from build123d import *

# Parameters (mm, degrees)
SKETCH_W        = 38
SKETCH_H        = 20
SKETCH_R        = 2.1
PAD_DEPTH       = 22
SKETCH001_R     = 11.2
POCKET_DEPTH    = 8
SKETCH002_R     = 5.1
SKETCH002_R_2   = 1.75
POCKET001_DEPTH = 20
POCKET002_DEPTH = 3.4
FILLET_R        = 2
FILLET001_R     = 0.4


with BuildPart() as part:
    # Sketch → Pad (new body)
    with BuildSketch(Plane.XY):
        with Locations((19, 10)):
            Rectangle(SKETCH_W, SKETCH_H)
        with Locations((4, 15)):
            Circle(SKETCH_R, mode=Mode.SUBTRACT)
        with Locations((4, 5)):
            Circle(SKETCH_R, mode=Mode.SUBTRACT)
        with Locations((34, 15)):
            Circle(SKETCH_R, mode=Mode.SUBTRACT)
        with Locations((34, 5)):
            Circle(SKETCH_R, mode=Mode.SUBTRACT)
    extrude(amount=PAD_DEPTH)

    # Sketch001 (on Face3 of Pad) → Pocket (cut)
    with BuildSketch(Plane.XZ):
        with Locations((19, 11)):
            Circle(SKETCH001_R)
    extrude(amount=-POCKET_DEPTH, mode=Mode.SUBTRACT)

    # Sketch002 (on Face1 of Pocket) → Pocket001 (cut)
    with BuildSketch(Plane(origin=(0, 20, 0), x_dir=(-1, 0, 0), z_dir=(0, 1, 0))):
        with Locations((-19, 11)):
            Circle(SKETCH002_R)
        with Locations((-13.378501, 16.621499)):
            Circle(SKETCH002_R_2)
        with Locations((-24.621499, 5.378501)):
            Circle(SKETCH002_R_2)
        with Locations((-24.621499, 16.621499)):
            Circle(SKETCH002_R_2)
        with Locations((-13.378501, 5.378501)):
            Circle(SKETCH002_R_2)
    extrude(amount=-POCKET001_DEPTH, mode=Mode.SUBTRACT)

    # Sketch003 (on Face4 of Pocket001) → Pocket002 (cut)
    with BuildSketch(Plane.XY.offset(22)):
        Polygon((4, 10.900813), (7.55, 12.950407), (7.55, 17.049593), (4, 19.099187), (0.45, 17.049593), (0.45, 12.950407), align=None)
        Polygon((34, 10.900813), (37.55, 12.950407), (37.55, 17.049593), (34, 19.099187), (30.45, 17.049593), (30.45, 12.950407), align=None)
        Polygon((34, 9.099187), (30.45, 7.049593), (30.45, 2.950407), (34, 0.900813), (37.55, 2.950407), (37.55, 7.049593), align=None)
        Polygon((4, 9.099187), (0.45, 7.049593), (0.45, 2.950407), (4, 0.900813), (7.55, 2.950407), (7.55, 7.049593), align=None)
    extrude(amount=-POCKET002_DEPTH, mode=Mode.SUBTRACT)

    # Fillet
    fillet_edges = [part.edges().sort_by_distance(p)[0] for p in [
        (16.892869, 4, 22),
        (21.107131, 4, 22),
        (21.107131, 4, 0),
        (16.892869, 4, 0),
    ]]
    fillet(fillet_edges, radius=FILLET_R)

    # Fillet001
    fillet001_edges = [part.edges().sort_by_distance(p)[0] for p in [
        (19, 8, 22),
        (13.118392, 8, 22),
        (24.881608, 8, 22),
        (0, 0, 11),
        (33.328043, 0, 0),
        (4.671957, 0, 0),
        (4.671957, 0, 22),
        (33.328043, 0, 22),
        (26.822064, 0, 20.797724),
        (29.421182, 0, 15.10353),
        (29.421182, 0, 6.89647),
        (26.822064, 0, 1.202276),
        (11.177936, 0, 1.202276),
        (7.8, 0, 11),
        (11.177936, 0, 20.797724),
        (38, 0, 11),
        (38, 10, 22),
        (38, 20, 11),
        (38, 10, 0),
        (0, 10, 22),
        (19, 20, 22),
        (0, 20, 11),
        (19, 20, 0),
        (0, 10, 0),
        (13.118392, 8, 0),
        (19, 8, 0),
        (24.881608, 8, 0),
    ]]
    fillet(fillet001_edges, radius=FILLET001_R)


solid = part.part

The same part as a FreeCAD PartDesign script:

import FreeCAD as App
import Part
import Sketcher
Q = App.Units.Quantity


def edges_at(feature, points):
    """Names of the edges that pass closest to the given points."""
    edges = feature.Shape.Edges
    near = lambda p: min(range(len(edges)), key=lambda i: edges[i].distToShape(Part.Vertex(*p))[0])
    return sorted({f"Edge{near(p) + 1}" for p in points})


def add_polygon(sketch, points):
    """Adds a closed chain of lines whose ends are joined by coincident constraints."""
    first, n = sketch.GeometryCount, len(points)
    for a, b in zip(points, points[1:] + points[:1]):
        sketch.addGeometry(Part.LineSegment(App.Vector(*a, 0), App.Vector(*b, 0)), False)
    for i in range(n):
        sketch.addConstraint(Sketcher.Constraint("Coincident", first + i, 2, first + (i + 1) % n, 1))

doc = App.newDocument("Part")
params = doc.addObject("Spreadsheet::Sheet", "Params")
for row, (alias, value) in enumerate([
    ("sketch1_diameter", "4.2 mm"),
    ("sketch1_width", "38 mm"),
    ("sketch1_height", "20 mm"),
    ("pad1_length", "22 mm"),
    ("sketch2_diameter", "22.4 mm"),
    ("pocket1_length", "8 mm"),
    ("sketch3_diameter", "10.2 mm"),
    ("sketch3_diameter2", "3.5 mm"),
    ("pocket2_length", "20 mm"),
    ("pocket3_length", "3.4 mm"),
    ("fillet_radius", "2 mm"),
    ("fillet2_radius", "0.4 mm"),
], start=1):
    params.set(f"A{row}", alias)
    params.set(f"B{row}", "=" + value)
    params.setAlias(f"B{row}", alias)

body = doc.addObject("PartDesign::Body", "Body")

sketch1 = body.newObject("Sketcher::SketchObject", "Sketch")
sketch1.AttachmentSupport = (doc.getObject("XY_Plane"), [""])
sketch1.MapMode = "FlatFace"
add_polygon(sketch1, [(0, 20), (0, 0), (38, 0), (38, 20)])
sketch1.addGeometry(Part.Circle(App.Vector(4, 5, 0), App.Vector(0, 0, 1), 2.1), False)
sketch1.addGeometry(Part.Circle(App.Vector(34, 5, 0), App.Vector(0, 0, 1), 2.1), False)
sketch1.addGeometry(Part.Circle(App.Vector(4, 15, 0), App.Vector(0, 0, 1), 2.1), False)
sketch1.addGeometry(Part.Circle(App.Vector(34, 15, 0), App.Vector(0, 0, 1), 2.1), False)
sketch1.addConstraint([
    Sketcher.Constraint("Vertical", 0),
    Sketcher.Constraint("Horizontal", 1),
    Sketcher.Constraint("Vertical", 2),
    Sketcher.Constraint("Horizontal", 3),
    Sketcher.Constraint("Coincident", 0, 2, -1, 1),
    Sketcher.Constraint("Equal", 4, 5),
    Sketcher.Constraint("Equal", 5, 6),
    Sketcher.Constraint("Equal", 6, 7),
    Sketcher.Constraint("Horizontal", 4, 3, 5, 3),
    Sketcher.Constraint("Horizontal", 6, 3, 7, 3),
    Sketcher.Constraint("Vertical", 4, 3, 6, 3),
    Sketcher.Constraint("Vertical", 5, 3, 7, 3),
    Sketcher.Constraint("Diameter", 4, 4.2),
    Sketcher.Constraint("DistanceX", 1, 1, 1, 2, 38.0),
    Sketcher.Constraint("DistanceY", 0, 2, 0, 1, 20.0),
    Sketcher.Constraint("DistanceX", -1, 1, 4, 3, 4.0),
    Sketcher.Constraint("DistanceY", -1, 1, 4, 3, 5.0),
    Sketcher.Constraint("DistanceX", -1, 1, 5, 3, 34.0),
    Sketcher.Constraint("DistanceY", -1, 1, 6, 3, 15.0),
])
sketch1.setExpression("Constraints[16]", "Params.sketch1_diameter")
sketch1.setExpression("Constraints[17]", "Params.sketch1_width")
sketch1.setExpression("Constraints[18]", "Params.sketch1_height")
pad1 = body.newObject("PartDesign::Pad", "Pad")
pad1.Profile = sketch1
pad1.setExpression("Length", "Params.pad1_length")

sketch2 = body.newObject("Sketcher::SketchObject", "Sketch001")
sketch2.AttachmentSupport = (doc.getObject("XZ_Plane"), [""])
sketch2.MapMode = "FlatFace"
sketch2.addGeometry(Part.Circle(App.Vector(19, 11, 0), App.Vector(0, 0, 1), 11), False)
sketch2.addConstraint([
    Sketcher.Constraint("Diameter", 0, 22.4),
    Sketcher.Constraint("DistanceX", -1, 1, 0, 3, 19.0),
    Sketcher.Constraint("DistanceY", -1, 1, 0, 3, 11.0),
])
sketch2.setExpression("Constraints[0]", "Params.sketch2_diameter")
pocket1 = body.newObject("PartDesign::Pocket", "Pocket")
pocket1.Profile = sketch2
pocket1.setExpression("Length", "Params.pocket1_length")

sketch3 = body.newObject("Sketcher::SketchObject", "Sketch002")
sketch3.AttachmentSupport = (doc.getObject("XZ_Plane"), [""])
sketch3.MapMode = "FlatFace"
sketch3.AttachmentOffset = App.Placement(App.Vector(0, 0, -20), App.Rotation())
sketch3.addGeometry([
    Part.Circle(App.Vector(19, 11, 0), App.Vector(0, 0, 1), 5.1),
    Part.Circle(App.Vector(13.4, 16.6, 0), App.Vector(0, 0, 1), 1.8),
    Part.Circle(App.Vector(24.6, 5.4, 0), App.Vector(0, 0, 1), 1.8),
    Part.Circle(App.Vector(24.6, 16.6, 0), App.Vector(0, 0, 1), 1.8),
    Part.Circle(App.Vector(13.4, 5.4, 0), App.Vector(0, 0, 1), 1.8),
], False)
sketch3.addConstraint([
    Sketcher.Constraint("Equal", 1, 2),
    Sketcher.Constraint("Equal", 2, 3),
    Sketcher.Constraint("Equal", 3, 4),
    Sketcher.Constraint("Horizontal", 1, 3, 3, 3),
    Sketcher.Constraint("Horizontal", 2, 3, 4, 3),
    Sketcher.Constraint("Vertical", 2, 3, 3, 3),
    Sketcher.Constraint("Vertical", 1, 3, 4, 3),
    Sketcher.Constraint("Diameter", 0, 10.2),
    Sketcher.Constraint("Diameter", 1, 3.5),
    Sketcher.Constraint("DistanceX", -1, 1, 0, 3, 19.0),
    Sketcher.Constraint("DistanceY", -1, 1, 0, 3, 11.0),
    Sketcher.Constraint("DistanceX", -1, 1, 1, 3, 13.378501),
    Sketcher.Constraint("DistanceY", -1, 1, 1, 3, 16.621499),
    Sketcher.Constraint("DistanceX", -1, 1, 2, 3, 24.621499),
    Sketcher.Constraint("DistanceY", -1, 1, 2, 3, 5.378501),
])
sketch3.setExpression("Constraints[7]", "Params.sketch3_diameter")
sketch3.setExpression("Constraints[8]", "Params.sketch3_diameter2")
pocket2 = body.newObject("PartDesign::Pocket", "Pocket001")
pocket2.Profile = sketch3
pocket2.setExpression("Length", "Params.pocket2_length")
pocket2.Reversed = True

sketch4 = body.newObject("Sketcher::SketchObject", "Sketch003")
sketch4.AttachmentSupport = (doc.getObject("XY_Plane"), [""])
sketch4.MapMode = "FlatFace"
sketch4.AttachmentOffset = App.Placement(App.Vector(0, 0, 22), App.Rotation())
add_polygon(sketch4, [(4, 10.9), (7.5, 13), (7.5, 17), (4, 19.1), (0.5, 17), (0.5, 13)])
add_polygon(sketch4, [(34, 10.9), (37.5, 13), (37.5, 17), (34, 19.1), (30.4, 17), (30.4, 13)])
add_polygon(sketch4, [(34, 9.1), (30.4, 7), (30.4, 3), (34, 0.9), (37.5, 3), (37.5, 7)])
add_polygon(sketch4, [(4, 9.1), (0.5, 7), (0.5, 3), (4, 0.9), (7.5, 3), (7.5, 7)])
sketch4.addConstraint([
    Sketcher.Constraint("Vertical", 1),
    Sketcher.Constraint("Vertical", 4),
    Sketcher.Constraint("Vertical", 7),
    Sketcher.Constraint("Vertical", 10),
    Sketcher.Constraint("Vertical", 13),
    Sketcher.Constraint("Vertical", 16),
    Sketcher.Constraint("Vertical", 19),
    Sketcher.Constraint("Vertical", 22),
    Sketcher.Constraint("Parallel", 0, 3),
    Sketcher.Constraint("Parallel", 2, 5),
    Sketcher.Constraint("Parallel", 3, 6),
    Sketcher.Constraint("Parallel", 5, 8),
    Sketcher.Constraint("Parallel", 6, 9),
    Sketcher.Constraint("Parallel", 8, 11),
    Sketcher.Constraint("Parallel", 9, 12),
    Sketcher.Constraint("Parallel", 11, 14),
    Sketcher.Constraint("Parallel", 12, 15),
    Sketcher.Constraint("Parallel", 14, 17),
    Sketcher.Constraint("Parallel", 15, 18),
    Sketcher.Constraint("Parallel", 17, 20),
    Sketcher.Constraint("Parallel", 18, 21),
    Sketcher.Constraint("Parallel", 20, 23),
    Sketcher.Constraint("Horizontal", 1, 2, 3, 2),
    Sketcher.Constraint("Horizontal", 0, 2, 4, 2),
    Sketcher.Constraint("Horizontal", 4, 2, 6, 2),
    Sketcher.Constraint("Horizontal", 3, 2, 7, 2),
    Sketcher.Constraint("Horizontal", 2, 2, 8, 2),
    Sketcher.Constraint("Horizontal", 7, 2, 9, 2),
    Sketcher.Constraint("Horizontal", 6, 2, 10, 2),
    Sketcher.Constraint("Horizontal", 13, 2, 15, 2),
    Sketcher.Constraint("Horizontal", 12, 2, 16, 2),
    Sketcher.Constraint("Horizontal", 16, 2, 18, 2),
    Sketcher.Constraint("Horizontal", 15, 2, 19, 2),
    Sketcher.Constraint("Horizontal", 14, 2, 20, 2),
    Sketcher.Constraint("Horizontal", 19, 2, 21, 2),
    Sketcher.Constraint("Horizontal", 18, 2, 22, 2),
    Sketcher.Constraint("Vertical", 2, 2, 5, 2),
    Sketcher.Constraint("Vertical", 10, 2, 12, 2),
    Sketcher.Constraint("Vertical", 11, 2, 14, 2),
    Sketcher.Constraint("Vertical", 4, 2, 18, 2),
    Sketcher.Constraint("Equal", 10, 13),
    Sketcher.Constraint("Angle", 0, Q("30.000007 deg")),
    Sketcher.Constraint("DistanceX", -1, 1, 2, 2, 4.0),
    Sketcher.Constraint("DistanceX", -1, 1, 8, 2, 34.0),
    Sketcher.Constraint("DistanceY", 12, 2, 9, 2, 10.0),
    Sketcher.Constraint("DistanceX", 3, 2, 1, 2, 7.1),
    Sketcher.Constraint("DistanceY", 1, 1, 1, 2, 4.099186),
    Sketcher.Constraint("DistanceY", -1, 1, 0, 2, 12.950407),
])
pocket3 = body.newObject("PartDesign::Pocket", "Pocket002")
pocket3.Profile = sketch4
pocket3.setExpression("Length", "Params.pocket3_length")
doc.recompute()

fillet = body.newObject("PartDesign::Fillet", "Fillet")
fillet.Base = (pocket3, edges_at(pocket3, [
    (16.893, 4, 22),
    (21.107, 4, 22),
    (21.107, 4, 0),
    (16.893, 4, 0),
]))
fillet.setExpression("Radius", "Params.fillet_radius")
doc.recompute()

fillet2 = body.newObject("PartDesign::Fillet", "Fillet001")
fillet2.Base = (fillet, edges_at(fillet, [
    (19, 8, 22),
    (19, 8, 22),
    (19, 8, 22),
    (0, 0, 11),
    (33.328, 0, 0),
    (4.672, 0, 0),
    (4.672, 0, 22),
    (33.328, 0, 22),
    (26.822, 0, 20.798),
    (30.2, 0, 11),
    (30.2, 0, 11),
    (26.822, 0, 1.202),
    (11.178, 0, 1.202),
    (7.8, 0, 11),
    (11.178, 0, 20.798),
    (38, 0, 11),
    (38, 10, 22),
    (38, 20, 11),
    (38, 10, 0),
    (0, 10, 22),
    (19, 20, 22),
    (0, 20, 11),
    (19, 20, 0),
    (0, 10, 0),
    (19, 8, 0),
    (19, 8, 0),
    (19, 8, 0),
]))
fillet2.setExpression("Radius", "Params.fillet2_radius")

doc.recompute()
